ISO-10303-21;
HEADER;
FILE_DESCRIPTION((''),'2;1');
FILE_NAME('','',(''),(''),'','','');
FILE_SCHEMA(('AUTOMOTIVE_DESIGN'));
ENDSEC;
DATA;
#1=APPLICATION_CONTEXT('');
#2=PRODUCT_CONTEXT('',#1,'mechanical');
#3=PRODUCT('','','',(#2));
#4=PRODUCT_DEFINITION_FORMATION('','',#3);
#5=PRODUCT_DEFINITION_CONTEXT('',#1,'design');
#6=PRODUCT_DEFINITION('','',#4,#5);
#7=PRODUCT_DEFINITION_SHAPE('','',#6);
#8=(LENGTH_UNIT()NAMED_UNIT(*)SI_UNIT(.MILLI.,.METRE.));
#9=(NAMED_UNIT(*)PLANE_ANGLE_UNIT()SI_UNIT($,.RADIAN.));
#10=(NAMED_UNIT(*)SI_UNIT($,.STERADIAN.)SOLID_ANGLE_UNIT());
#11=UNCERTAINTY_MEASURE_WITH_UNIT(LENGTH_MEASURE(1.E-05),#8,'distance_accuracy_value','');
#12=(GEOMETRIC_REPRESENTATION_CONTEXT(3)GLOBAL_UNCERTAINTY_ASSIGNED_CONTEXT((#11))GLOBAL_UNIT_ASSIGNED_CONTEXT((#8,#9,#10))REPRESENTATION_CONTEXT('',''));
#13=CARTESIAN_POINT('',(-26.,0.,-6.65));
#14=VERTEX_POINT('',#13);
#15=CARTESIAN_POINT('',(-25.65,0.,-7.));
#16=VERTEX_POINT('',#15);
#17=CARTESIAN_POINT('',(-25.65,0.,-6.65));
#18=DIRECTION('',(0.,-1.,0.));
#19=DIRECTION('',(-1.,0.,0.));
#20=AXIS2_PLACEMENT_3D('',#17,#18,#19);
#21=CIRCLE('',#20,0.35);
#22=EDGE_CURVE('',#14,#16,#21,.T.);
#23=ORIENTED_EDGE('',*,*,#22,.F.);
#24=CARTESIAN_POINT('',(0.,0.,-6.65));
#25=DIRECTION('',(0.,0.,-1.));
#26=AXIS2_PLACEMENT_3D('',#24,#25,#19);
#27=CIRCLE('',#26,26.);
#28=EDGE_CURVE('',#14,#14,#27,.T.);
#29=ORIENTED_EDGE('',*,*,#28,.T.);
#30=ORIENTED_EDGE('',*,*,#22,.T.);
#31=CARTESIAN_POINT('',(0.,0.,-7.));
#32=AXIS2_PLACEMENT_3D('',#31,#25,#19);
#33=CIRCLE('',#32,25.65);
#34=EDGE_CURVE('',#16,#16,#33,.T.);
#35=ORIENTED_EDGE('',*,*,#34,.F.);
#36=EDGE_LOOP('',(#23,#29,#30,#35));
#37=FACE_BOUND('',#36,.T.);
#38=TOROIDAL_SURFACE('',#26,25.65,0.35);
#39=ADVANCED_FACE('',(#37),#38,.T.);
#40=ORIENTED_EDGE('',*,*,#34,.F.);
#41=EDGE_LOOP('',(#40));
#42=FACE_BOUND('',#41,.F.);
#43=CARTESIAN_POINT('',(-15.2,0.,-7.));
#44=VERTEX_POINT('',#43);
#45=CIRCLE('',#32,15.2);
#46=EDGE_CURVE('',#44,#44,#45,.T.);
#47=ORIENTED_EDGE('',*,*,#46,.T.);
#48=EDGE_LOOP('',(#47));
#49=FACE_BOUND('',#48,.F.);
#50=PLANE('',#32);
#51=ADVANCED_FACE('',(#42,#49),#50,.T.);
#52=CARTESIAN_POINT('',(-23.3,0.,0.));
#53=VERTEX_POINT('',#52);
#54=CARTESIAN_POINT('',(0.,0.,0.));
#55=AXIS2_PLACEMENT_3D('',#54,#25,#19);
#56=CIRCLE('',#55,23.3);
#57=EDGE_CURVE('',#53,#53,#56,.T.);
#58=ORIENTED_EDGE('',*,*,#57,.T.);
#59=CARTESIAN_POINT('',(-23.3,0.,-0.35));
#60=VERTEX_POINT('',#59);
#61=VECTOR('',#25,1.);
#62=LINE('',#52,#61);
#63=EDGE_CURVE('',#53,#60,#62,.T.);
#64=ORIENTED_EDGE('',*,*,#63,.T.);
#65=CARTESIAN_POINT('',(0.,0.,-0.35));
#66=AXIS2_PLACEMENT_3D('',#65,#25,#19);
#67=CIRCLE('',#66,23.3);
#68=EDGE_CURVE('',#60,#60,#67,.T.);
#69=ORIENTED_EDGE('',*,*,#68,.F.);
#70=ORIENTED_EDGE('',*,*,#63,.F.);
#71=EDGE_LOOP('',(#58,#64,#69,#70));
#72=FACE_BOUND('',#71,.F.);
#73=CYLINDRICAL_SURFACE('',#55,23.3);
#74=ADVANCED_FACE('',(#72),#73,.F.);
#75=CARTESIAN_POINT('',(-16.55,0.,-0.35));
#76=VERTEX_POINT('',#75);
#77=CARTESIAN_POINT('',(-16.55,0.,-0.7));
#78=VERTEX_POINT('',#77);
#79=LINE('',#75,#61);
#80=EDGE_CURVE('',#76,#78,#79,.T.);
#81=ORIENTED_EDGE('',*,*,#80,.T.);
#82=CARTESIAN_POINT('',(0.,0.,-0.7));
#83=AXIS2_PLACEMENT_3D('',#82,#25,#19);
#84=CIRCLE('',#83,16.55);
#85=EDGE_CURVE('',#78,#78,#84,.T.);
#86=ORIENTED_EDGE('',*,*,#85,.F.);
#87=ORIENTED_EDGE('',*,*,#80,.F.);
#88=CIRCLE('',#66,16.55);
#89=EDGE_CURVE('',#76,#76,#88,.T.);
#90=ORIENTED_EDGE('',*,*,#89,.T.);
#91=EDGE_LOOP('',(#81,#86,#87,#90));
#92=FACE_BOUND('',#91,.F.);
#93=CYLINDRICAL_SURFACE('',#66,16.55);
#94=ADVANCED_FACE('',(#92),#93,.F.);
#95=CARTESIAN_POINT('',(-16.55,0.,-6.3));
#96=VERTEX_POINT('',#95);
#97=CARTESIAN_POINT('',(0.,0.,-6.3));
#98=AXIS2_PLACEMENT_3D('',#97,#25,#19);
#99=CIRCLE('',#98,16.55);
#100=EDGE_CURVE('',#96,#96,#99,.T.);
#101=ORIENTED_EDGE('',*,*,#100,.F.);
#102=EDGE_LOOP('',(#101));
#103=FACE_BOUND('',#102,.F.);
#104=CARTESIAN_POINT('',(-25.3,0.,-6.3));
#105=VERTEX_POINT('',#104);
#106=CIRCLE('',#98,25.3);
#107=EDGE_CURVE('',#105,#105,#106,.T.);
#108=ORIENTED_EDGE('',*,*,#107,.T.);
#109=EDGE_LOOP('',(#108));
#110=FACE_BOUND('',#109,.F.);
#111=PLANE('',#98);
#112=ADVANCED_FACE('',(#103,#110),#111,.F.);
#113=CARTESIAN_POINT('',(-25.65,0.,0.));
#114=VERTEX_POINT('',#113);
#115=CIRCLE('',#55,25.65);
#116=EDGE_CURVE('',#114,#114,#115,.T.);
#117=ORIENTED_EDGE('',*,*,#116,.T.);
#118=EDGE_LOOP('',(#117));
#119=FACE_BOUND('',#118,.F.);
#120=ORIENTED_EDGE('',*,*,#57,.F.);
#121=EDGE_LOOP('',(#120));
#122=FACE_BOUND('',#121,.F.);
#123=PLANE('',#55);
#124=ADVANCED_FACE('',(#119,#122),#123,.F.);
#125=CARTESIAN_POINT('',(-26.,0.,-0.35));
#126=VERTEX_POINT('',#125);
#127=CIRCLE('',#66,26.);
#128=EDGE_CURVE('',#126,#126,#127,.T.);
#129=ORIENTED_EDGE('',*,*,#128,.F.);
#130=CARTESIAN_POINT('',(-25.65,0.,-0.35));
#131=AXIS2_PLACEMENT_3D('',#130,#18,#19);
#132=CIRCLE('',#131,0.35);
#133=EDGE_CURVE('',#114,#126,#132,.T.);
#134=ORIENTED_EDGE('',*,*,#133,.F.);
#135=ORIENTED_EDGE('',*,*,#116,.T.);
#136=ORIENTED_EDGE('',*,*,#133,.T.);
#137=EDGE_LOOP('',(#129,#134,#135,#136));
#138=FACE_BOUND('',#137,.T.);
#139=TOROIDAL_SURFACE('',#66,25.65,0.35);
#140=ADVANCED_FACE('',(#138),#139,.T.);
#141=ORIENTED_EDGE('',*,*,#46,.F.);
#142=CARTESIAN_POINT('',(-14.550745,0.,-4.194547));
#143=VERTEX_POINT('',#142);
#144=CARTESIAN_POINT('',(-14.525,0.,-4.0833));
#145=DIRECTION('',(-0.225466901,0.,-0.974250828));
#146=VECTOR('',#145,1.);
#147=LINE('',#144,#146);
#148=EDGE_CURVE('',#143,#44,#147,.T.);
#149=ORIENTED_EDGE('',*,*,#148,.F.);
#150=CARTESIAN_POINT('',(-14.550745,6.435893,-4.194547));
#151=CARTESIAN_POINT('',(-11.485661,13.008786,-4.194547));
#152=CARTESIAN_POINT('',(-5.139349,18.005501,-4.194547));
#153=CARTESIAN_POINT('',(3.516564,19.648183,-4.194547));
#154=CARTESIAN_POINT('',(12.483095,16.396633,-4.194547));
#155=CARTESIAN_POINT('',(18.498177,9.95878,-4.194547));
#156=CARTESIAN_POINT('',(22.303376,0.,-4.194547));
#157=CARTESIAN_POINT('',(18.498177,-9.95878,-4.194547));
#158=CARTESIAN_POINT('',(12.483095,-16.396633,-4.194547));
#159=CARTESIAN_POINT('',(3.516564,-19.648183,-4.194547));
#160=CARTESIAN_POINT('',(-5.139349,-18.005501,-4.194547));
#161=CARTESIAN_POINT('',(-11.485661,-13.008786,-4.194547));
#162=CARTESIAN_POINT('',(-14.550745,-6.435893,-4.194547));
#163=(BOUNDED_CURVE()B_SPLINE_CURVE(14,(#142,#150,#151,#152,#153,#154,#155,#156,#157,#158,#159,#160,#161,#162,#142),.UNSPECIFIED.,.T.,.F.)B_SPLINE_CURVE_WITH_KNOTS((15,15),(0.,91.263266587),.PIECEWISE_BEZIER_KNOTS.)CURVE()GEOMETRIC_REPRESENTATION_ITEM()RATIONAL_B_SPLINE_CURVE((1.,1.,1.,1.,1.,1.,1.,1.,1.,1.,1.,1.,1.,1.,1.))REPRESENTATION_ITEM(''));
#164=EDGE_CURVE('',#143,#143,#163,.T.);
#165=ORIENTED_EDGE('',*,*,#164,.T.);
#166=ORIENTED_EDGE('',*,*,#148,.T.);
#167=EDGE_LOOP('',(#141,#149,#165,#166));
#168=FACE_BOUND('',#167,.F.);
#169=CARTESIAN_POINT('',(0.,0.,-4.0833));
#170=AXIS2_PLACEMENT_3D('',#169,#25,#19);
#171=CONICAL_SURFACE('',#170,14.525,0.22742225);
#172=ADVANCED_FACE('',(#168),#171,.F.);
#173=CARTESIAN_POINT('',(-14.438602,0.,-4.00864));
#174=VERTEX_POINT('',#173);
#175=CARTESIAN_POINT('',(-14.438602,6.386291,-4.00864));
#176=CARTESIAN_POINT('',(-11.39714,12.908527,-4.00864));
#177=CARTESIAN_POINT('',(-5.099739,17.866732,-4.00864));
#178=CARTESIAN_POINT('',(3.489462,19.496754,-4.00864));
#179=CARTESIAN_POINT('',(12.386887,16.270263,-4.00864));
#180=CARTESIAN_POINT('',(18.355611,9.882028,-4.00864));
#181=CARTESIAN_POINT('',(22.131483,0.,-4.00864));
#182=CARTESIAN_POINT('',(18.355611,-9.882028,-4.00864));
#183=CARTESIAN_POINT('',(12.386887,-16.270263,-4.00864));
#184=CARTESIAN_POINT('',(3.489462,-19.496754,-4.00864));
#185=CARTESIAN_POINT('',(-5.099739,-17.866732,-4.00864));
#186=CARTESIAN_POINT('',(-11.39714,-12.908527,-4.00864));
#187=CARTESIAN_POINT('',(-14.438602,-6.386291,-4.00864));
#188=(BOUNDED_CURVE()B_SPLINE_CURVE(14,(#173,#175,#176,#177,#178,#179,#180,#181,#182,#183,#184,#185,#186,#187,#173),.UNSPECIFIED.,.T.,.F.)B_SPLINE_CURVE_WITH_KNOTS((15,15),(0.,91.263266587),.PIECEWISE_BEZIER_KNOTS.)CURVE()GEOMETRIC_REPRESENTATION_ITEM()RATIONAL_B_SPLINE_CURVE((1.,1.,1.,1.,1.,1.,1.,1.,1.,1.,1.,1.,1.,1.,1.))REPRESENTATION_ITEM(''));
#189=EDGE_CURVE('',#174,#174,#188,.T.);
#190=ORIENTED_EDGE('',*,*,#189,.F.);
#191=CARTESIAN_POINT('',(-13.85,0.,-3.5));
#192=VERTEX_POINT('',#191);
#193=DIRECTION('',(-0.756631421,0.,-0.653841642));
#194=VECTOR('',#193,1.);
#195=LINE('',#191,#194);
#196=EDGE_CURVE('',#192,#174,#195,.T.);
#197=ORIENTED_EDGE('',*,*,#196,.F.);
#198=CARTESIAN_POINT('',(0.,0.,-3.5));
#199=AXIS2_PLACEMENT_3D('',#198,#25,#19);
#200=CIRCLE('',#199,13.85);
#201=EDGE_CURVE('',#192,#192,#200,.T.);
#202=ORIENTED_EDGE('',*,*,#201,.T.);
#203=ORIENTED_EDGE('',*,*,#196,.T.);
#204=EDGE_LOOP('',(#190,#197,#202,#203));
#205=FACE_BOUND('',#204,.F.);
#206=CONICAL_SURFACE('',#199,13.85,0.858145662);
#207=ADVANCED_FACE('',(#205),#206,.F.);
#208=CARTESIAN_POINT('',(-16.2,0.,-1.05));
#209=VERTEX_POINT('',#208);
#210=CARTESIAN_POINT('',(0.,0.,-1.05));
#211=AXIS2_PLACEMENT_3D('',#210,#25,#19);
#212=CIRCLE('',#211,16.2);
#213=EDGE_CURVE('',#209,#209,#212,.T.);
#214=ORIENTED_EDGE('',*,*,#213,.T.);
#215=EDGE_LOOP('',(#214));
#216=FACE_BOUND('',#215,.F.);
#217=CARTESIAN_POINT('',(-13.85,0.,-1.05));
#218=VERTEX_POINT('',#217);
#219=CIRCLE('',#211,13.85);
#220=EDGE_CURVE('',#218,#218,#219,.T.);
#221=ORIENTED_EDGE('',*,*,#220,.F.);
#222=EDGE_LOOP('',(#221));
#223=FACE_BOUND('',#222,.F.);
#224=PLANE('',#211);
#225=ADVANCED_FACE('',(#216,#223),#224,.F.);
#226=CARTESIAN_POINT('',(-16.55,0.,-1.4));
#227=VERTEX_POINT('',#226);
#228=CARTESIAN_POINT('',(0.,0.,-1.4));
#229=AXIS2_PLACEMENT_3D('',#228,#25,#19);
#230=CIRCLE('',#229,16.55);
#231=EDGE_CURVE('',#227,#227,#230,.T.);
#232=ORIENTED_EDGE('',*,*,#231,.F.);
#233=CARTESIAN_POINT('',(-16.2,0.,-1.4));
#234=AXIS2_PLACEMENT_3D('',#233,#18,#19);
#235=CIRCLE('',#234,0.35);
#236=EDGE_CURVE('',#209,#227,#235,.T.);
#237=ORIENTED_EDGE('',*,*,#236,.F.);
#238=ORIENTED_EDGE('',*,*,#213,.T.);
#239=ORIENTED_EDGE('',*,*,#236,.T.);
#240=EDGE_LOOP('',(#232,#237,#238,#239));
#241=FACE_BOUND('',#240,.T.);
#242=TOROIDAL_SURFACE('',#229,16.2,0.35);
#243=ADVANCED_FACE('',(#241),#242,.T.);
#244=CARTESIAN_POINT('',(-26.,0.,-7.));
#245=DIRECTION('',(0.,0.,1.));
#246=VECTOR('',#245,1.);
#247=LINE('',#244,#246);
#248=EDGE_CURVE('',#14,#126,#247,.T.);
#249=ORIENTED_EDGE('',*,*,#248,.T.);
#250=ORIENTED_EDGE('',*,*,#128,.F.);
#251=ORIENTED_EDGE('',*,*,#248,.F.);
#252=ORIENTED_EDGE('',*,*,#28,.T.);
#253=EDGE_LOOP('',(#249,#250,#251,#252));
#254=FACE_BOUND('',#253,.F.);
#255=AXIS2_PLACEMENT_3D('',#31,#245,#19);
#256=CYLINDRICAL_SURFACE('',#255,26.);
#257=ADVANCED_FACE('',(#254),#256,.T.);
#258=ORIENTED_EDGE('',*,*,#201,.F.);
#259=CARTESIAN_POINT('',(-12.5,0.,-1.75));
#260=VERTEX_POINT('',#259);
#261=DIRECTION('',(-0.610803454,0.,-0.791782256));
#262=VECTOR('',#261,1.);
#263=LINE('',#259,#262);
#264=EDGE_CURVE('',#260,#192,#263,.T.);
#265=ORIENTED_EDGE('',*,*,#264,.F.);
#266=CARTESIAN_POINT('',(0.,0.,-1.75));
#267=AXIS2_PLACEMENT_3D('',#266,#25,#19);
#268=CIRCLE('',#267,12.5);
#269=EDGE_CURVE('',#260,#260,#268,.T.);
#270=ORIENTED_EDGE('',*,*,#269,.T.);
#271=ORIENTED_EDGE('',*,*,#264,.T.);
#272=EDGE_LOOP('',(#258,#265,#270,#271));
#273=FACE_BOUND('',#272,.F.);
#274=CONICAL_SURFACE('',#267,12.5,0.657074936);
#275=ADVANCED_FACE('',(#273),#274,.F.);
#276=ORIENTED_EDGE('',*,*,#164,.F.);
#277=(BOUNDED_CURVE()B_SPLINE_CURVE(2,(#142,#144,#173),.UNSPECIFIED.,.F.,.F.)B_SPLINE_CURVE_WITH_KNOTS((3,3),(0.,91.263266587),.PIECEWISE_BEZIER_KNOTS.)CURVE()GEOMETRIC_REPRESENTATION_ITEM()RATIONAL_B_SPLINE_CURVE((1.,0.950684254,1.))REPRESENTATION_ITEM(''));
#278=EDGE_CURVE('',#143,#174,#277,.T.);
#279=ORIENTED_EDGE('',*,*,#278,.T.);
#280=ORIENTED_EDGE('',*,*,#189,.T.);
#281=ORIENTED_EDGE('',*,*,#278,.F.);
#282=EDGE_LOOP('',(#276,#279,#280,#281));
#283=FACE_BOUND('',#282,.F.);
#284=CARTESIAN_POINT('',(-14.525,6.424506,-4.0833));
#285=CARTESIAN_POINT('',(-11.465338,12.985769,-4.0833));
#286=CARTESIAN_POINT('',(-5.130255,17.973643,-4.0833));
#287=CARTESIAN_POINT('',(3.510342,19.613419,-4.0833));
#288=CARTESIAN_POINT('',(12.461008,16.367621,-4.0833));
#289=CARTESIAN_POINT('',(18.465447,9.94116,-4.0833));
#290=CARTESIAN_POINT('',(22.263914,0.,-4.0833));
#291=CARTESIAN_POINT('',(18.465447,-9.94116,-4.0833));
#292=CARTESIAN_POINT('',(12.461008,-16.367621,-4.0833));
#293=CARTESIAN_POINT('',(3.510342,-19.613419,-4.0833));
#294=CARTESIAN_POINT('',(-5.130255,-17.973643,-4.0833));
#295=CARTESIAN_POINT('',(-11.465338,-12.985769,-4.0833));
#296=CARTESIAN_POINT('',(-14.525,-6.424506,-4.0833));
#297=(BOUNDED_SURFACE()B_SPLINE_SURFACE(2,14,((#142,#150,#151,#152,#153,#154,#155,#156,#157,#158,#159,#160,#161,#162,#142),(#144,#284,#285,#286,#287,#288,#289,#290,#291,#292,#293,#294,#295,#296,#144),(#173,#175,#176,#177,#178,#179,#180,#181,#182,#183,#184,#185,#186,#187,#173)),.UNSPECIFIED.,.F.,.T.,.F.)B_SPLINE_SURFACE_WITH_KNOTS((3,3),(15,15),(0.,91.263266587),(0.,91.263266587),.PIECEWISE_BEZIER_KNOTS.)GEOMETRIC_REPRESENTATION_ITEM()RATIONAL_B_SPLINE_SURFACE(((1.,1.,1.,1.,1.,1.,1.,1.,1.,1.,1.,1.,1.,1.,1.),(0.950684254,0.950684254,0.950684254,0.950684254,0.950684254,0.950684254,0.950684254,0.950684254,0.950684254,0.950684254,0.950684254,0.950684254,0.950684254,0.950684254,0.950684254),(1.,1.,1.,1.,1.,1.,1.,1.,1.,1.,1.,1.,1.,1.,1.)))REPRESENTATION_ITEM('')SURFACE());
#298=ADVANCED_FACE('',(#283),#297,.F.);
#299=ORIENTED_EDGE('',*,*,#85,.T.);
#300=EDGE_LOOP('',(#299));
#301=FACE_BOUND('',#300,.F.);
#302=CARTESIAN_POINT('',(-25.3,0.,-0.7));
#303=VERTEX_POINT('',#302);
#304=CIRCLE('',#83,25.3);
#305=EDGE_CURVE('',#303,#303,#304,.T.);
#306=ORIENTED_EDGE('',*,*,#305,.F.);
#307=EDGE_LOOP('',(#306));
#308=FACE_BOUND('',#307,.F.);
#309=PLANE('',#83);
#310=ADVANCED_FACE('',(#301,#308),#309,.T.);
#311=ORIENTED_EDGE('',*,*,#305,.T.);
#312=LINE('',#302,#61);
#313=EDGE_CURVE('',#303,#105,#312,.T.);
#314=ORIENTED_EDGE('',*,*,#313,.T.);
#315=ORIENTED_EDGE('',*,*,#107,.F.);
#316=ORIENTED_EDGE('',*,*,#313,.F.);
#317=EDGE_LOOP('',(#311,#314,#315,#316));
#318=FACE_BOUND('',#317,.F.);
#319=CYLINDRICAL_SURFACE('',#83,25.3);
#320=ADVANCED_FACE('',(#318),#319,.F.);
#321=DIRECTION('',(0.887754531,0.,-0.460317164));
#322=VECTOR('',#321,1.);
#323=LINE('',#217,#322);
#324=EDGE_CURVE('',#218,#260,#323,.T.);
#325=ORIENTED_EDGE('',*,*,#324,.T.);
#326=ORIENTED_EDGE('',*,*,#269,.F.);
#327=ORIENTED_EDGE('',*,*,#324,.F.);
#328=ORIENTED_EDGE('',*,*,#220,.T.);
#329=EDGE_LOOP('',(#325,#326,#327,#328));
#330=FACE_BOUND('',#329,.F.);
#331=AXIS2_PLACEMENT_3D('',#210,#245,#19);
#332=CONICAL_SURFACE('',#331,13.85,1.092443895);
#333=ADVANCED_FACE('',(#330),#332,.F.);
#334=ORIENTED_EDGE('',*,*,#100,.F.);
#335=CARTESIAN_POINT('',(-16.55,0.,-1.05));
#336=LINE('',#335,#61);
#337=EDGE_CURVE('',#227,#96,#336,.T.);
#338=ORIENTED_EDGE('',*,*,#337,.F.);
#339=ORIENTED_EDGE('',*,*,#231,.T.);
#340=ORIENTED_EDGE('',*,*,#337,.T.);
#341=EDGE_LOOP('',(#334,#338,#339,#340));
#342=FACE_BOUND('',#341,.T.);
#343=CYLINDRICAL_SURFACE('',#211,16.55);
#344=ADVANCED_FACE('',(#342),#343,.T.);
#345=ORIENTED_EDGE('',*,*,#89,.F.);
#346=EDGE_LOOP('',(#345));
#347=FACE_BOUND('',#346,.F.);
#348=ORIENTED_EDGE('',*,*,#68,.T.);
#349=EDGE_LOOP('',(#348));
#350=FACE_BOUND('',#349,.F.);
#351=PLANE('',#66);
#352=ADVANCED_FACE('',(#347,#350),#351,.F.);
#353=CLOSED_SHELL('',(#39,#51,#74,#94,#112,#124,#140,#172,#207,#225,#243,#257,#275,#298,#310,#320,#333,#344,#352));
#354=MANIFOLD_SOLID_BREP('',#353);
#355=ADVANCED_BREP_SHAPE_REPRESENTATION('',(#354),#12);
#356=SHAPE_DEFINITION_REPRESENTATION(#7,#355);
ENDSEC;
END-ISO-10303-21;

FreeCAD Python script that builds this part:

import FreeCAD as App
import Part
import Sketcher

V = App.Vector
Q = App.Units.Quantity


def edges_at(feature, points):
    """Names of the edges that pass closest to the given points."""
    edges = feature.Shape.Edges
    near = lambda p: min(range(len(edges)), key=lambda i: edges[i].distToShape(Part.Vertex(*p))[0])
    return sorted({f"Edge{near(p) + 1}" for p in points})

doc = App.newDocument("Part")
body = doc.addObject("PartDesign::Body", "Body")

# Sketch on XZ plane
sketch1 = body.newObject("Sketcher::SketchObject", "Sketch")
sketch1.AttachmentSupport = (doc.getObject("XZ_Plane"), [""])
sketch1.MapMode = "FlatFace"
sketch1.addGeometry([
    Part.LineSegment(V(-16.55, -0.35, 0), V(-16.55, -0.7, 0)),  # 0
    Part.LineSegment(V(-16.55, -0.7, 0), V(-25.3, -0.7, 0)),  # 1
    Part.LineSegment(V(-25.3, -0.7, 0), V(-25.3, -6.3, 0)),  # 2
    Part.LineSegment(V(-25.3, -6.3, 0), V(-16.55, -6.3, 0)),  # 3
    Part.LineSegment(V(-16.55, -6.3, 0), V(-16.55, -1.05, 0)),  # 4
    Part.LineSegment(V(-16.55, -1.05, 0), V(-13.85, -1.05, 0)),  # 5
    Part.LineSegment(V(-13.85, -1.05, 0), V(-12.5, -1.75, 0)),  # 6
    Part.LineSegment(V(-12.5, -1.75, 0), V(-13.85, -3.5, 0)),  # 7
    Part.LineSegment(V(-13.85, -3.5, 0), V(-14.53, -4.08, 0)),  # 8
    Part.LineSegment(V(-14.53, -4.08, 0), V(-15.2, -7, 0)),  # 9
    Part.LineSegment(V(-15.2, -7, 0), V(-26, -7, 0)),  # 10
    Part.LineSegment(V(-26, -7, 0), V(-26, 0, 0)),  # 11
    Part.LineSegment(V(-26, 0, 0), V(-23.3, 0, 0)),  # 12
    Part.LineSegment(V(-23.3, 0, 0), V(-23.3, -0.35, 0)),  # 13
    Part.LineSegment(V(-23.3, -0.35, 0), V(-16.55, -0.35, 0)),  # 14
], False)
sketch1.addConstraint([
    Sketcher.Constraint("Coincident", 0, 2, 1, 1),
    Sketcher.Constraint("Coincident", 1, 2, 2, 1),
    Sketcher.Constraint("Coincident", 2, 2, 3, 1),
    Sketcher.Constraint("Coincident", 3, 2, 4, 1),
    Sketcher.Constraint("Coincident", 4, 2, 5, 1),
    Sketcher.Constraint("Coincident", 5, 2, 6, 1),
    Sketcher.Constraint("Coincident", 6, 2, 7, 1),
    Sketcher.Constraint("Coincident", 7, 2, 8, 1),
    Sketcher.Constraint("Coincident", 8, 2, 9, 1),
    Sketcher.Constraint("Coincident", 9, 2, 10, 1),
    Sketcher.Constraint("Coincident", 10, 2, 11, 1),
    Sketcher.Constraint("Coincident", 11, 2, 12, 1),
    Sketcher.Constraint("Coincident", 12, 2, 13, 1),
    Sketcher.Constraint("Coincident", 13, 2, 14, 1),
    Sketcher.Constraint("Coincident", 14, 2, 0, 1),
    Sketcher.Constraint("Vertical", 0),
    Sketcher.Constraint("Horizontal", 1),
    Sketcher.Constraint("Vertical", 2),
    Sketcher.Constraint("Horizontal", 3),
    Sketcher.Constraint("Vertical", 4),
    Sketcher.Constraint("Horizontal", 5),
    Sketcher.Constraint("Horizontal", 10),
    Sketcher.Constraint("Vertical", 11),
    Sketcher.Constraint("Horizontal", 12),
    Sketcher.Constraint("Vertical", 13),
    Sketcher.Constraint("Horizontal", 14),
    Sketcher.Constraint("PointOnObject", 11, 2, -1),
    Sketcher.Constraint("Vertical", 0, 2, 3, 2),
    Sketcher.Constraint("Vertical", 5, 2, 7, 2),
    Sketcher.Constraint("Equal", 5, 12),
    Sketcher.Constraint("Equal", 0, 13),
    Sketcher.Constraint("DistanceY", 11, 1, 11, 2, 7.0),
    Sketcher.Constraint("DistanceX", 5, 1, 5, 2, 2.7),
    Sketcher.Constraint("DistanceY", 0, 2, 0, 1, 0.35),
    Sketcher.Constraint("DistanceY", 6, 2, 5, 2, 0.7),
    Sketcher.Constraint("DistanceY", 9, 2, 3, 2, 0.7),
    Sketcher.Constraint("DistanceX", 9, 2, 6, 2, 2.7),
    Sketcher.Constraint("DistanceX", 10, 2, 2, 2, 0.7),
    Sketcher.Constraint("DistanceY", 4, 2, 14, 2, 0.7),
    Sketcher.Constraint("DistanceX", 5, 2, 6, 2, 1.35),
    Sketcher.Constraint("DistanceY", 7, 2, 6, 2, 1.75),
    Sketcher.Constraint("DistanceX", 10, 2, 10, 1, 10.8),
    Sketcher.Constraint("DistanceX", 10, 2, -1, 1, 26.0),
    Sketcher.Constraint("DistanceX", 8, 2, 7, 2, 0.675),
    Sketcher.Constraint("Angle", 9, Q("-103.0303 deg")),
])
revolution = body.newObject("PartDesign::Revolution", "Revolution")
revolution.Profile = sketch1
revolution.ReferenceAxis = (sketch1, ["V_Axis"])
revolution.Angle = 360
doc.recompute()

fillet = body.newObject("PartDesign::Fillet", "Fillet")
fillet.Base = (revolution, edges_at(revolution, [
    (26, 0, 0),
    (26, 0, -7),
    (14.525, 0, -4.083),
    (16.55, 0, -1.05),
]))
fillet.Radius = 0.35

doc.recompute()
